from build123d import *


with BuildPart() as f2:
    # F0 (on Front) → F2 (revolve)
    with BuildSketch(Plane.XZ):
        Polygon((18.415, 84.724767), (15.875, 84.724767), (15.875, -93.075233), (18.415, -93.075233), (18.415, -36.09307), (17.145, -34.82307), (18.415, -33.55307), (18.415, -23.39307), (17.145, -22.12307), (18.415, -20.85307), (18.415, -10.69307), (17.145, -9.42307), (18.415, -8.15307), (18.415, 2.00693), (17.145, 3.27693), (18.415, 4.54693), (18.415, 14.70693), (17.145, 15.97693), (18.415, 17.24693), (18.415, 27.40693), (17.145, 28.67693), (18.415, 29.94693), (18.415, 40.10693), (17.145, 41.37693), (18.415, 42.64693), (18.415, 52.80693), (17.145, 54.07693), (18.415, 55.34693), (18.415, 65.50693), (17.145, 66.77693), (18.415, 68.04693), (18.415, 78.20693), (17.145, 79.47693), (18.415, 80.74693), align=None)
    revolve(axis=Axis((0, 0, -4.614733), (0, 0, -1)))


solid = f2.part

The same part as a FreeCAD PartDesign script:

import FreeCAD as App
import Part
import Sketcher
from FreeCAD import Vector
Q = App.Units.Quantity


def add_polygon(sketch, points):
    """Adds a closed chain of lines whose ends are joined by coincident constraints."""
    first, n = sketch.GeometryCount, len(points)
    for a, b in zip(points, points[1:] + points[:1]):
        sketch.addGeometry(Part.LineSegment(App.Vector(*a, 0), App.Vector(*b, 0)), False)
    for i in range(n):
        sketch.addConstraint(Sketcher.Constraint("Coincident", first + i, 2, first + (i + 1) % n, 1))

doc = App.newDocument("Part")
body = doc.addObject("PartDesign::Body", "Body")

# Sketch on XZ plane
sketch1 = doc.addObject("Sketcher::SketchObject", "Sketch")
body.addObject(sketch1)
sketch1.AttachmentSupport = (doc.XZ_Plane, [""])
sketch1.MapMode = "FlatFace"
add_polygon(sketch1, [(18.415, 84.724767), (15.875, 84.724767), (15.875, -93.075233), (18.415, -93.075233), (18.415, -36.09307), (17.145, -34.82307), (18.415, -33.55307), (18.415, -23.39307), (17.145, -22.12307), (18.415, -20.85307), (18.415, -10.69307), (17.145, -9.42307), (18.415, -8.15307), (18.415, 2.00693), (17.145, 3.27693), (18.415, 4.54693), (18.415, 14.70693), (17.145, 15.97693), (18.415, 17.24693), (18.415, 27.40693), (17.145, 28.67693), (18.415, 29.94693), (18.415, 40.10693), (17.145, 41.37693), (18.415, 42.64693), (18.415, 52.80693), (17.145, 54.07693), (18.415, 55.34693), (18.415, 65.50693), (17.145, 66.77693), (18.415, 68.04693), (18.415, 78.20693), (17.145, 79.47693), (18.415, 80.74693)])  # lines 0-33
sketch1.addConstraint(Sketcher.Constraint("Horizontal", 0))
sketch1.addConstraint(Sketcher.Constraint("Vertical", 1))
sketch1.addConstraint(Sketcher.Constraint("Horizontal", 2))
sketch1.addConstraint(Sketcher.Constraint("Vertical", 3))
sketch1.addConstraint(Sketcher.Constraint("Vertical", 6))
sketch1.addConstraint(Sketcher.Constraint("Vertical", 9))
sketch1.addConstraint(Sketcher.Constraint("Vertical", 12))
sketch1.addConstraint(Sketcher.Constraint("Vertical", 15))
sketch1.addConstraint(Sketcher.Constraint("Vertical", 18))
sketch1.addConstraint(Sketcher.Constraint("Vertical", 21))
sketch1.addConstraint(Sketcher.Constraint("Vertical", 24))
sketch1.addConstraint(Sketcher.Constraint("Vertical", 27))
sketch1.addConstraint(Sketcher.Constraint("Vertical", 30))
sketch1.addConstraint(Sketcher.Constraint("Vertical", 33))
sketch1.addConstraint(Sketcher.Constraint("Perpendicular", 4, 5))
sketch1.addConstraint(Sketcher.Constraint("Perpendicular", 5, 7))
sketch1.addConstraint(Sketcher.Constraint("Perpendicular", 7, 8))
sketch1.addConstraint(Sketcher.Constraint("Perpendicular", 8, 10))
sketch1.addConstraint(Sketcher.Constraint("Perpendicular", 10, 11))
sketch1.addConstraint(Sketcher.Constraint("Perpendicular", 11, 13))
sketch1.addConstraint(Sketcher.Constraint("Perpendicular", 13, 14))
sketch1.addConstraint(Sketcher.Constraint("Perpendicular", 14, 16))
sketch1.addConstraint(Sketcher.Constraint("Perpendicular", 16, 17))
sketch1.addConstraint(Sketcher.Constraint("Perpendicular", 17, 19))
sketch1.addConstraint(Sketcher.Constraint("Perpendicular", 19, 20))
sketch1.addConstraint(Sketcher.Constraint("Perpendicular", 20, 22))
sketch1.addConstraint(Sketcher.Constraint("Perpendicular", 22, 23))
sketch1.addConstraint(Sketcher.Constraint("Perpendicular", 23, 25))
sketch1.addConstraint(Sketcher.Constraint("Perpendicular", 25, 26))
sketch1.addConstraint(Sketcher.Constraint("Perpendicular", 26, 28))
sketch1.addConstraint(Sketcher.Constraint("Perpendicular", 28, 29))
sketch1.addConstraint(Sketcher.Constraint("Perpendicular", 29, 31))
sketch1.addConstraint(Sketcher.Constraint("Perpendicular", 31, 32))
sketch1.addConstraint(Sketcher.Constraint("Vertical", 3, 2, 5, 2))
sketch1.addConstraint(Sketcher.Constraint("Vertical", 4, 2, 7, 2))
sketch1.addConstraint(Sketcher.Constraint("Vertical", 6, 2, 8, 2))
sketch1.addConstraint(Sketcher.Constraint("Vertical", 7, 2, 10, 2))
sketch1.addConstraint(Sketcher.Constraint("Vertical", 9, 2, 11, 2))
sketch1.addConstraint(Sketcher.Constraint("Vertical", 10, 2, 13, 2))
sketch1.addConstraint(Sketcher.Constraint("Vertical", 12, 2, 14, 2))
sketch1.addConstraint(Sketcher.Constraint("Vertical", 13, 2, 16, 2))
sketch1.addConstraint(Sketcher.Constraint("Vertical", 15, 2, 17, 2))
sketch1.addConstraint(Sketcher.Constraint("Vertical", 16, 2, 19, 2))
sketch1.addConstraint(Sketcher.Constraint("Vertical", 18, 2, 20, 2))
sketch1.addConstraint(Sketcher.Constraint("Vertical", 19, 2, 22, 2))
sketch1.addConstraint(Sketcher.Constraint("Vertical", 21, 2, 23, 2))
sketch1.addConstraint(Sketcher.Constraint("Vertical", 22, 2, 25, 2))
sketch1.addConstraint(Sketcher.Constraint("Vertical", 24, 2, 26, 2))
sketch1.addConstraint(Sketcher.Constraint("Vertical", 25, 2, 28, 2))
sketch1.addConstraint(Sketcher.Constraint("Vertical", 27, 2, 29, 2))
sketch1.addConstraint(Sketcher.Constraint("Vertical", 28, 2, 31, 2))
sketch1.addConstraint(Sketcher.Constraint("Vertical", 30, 2, 32, 2))
sketch1.addConstraint(Sketcher.Constraint("Equal", 6, 9))
sketch1.addConstraint(Sketcher.Constraint("Equal", 9, 12))
sketch1.addConstraint(Sketcher.Constraint("Equal", 12, 15))
sketch1.addConstraint(Sketcher.Constraint("Equal", 15, 18))
sketch1.addConstraint(Sketcher.Constraint("Equal", 18, 21))
sketch1.addConstraint(Sketcher.Constraint("Equal", 21, 24))
sketch1.addConstraint(Sketcher.Constraint("Equal", 24, 27))
sketch1.addConstraint(Sketcher.Constraint("Equal", 27, 30))
sketch1.addConstraint(Sketcher.Constraint("Equal", 4, 5))
sketch1.addConstraint(Sketcher.Constraint("DistanceY", 1, 2, 1, 1, Q("7 in")))
sketch1.addConstraint(Sketcher.Constraint("DistanceX", 0, 2, 0, 1, Q("0.1 in")))
sketch1.addConstraint(Sketcher.Constraint("DistanceY", 6, 1, 6, 2, Q("0.4 in")))
sketch1.addConstraint(Sketcher.Constraint("DistanceY", 3, 2, 5, 2, Q("0.1 in")))
sketch1.addConstraint(Sketcher.Constraint("DistanceX", -1, 1, 0, 2, Q("0.625 in")))
sketch1.addConstraint(Sketcher.Constraint("DistanceY", 3, 1, 3, 2, 56.982163))
sketch1.addConstraint(Sketcher.Constraint("DistanceY", 3, 2, -1, 1, 36.09307))
revolution = doc.addObject("PartDesign::Revolution", "Revolution")
body.addObject(revolution)
revolution.Profile = sketch1
revolution.ReferenceAxis = (sketch1, ["V_Axis"])
revolution.Angle = 360

doc.recompute()
